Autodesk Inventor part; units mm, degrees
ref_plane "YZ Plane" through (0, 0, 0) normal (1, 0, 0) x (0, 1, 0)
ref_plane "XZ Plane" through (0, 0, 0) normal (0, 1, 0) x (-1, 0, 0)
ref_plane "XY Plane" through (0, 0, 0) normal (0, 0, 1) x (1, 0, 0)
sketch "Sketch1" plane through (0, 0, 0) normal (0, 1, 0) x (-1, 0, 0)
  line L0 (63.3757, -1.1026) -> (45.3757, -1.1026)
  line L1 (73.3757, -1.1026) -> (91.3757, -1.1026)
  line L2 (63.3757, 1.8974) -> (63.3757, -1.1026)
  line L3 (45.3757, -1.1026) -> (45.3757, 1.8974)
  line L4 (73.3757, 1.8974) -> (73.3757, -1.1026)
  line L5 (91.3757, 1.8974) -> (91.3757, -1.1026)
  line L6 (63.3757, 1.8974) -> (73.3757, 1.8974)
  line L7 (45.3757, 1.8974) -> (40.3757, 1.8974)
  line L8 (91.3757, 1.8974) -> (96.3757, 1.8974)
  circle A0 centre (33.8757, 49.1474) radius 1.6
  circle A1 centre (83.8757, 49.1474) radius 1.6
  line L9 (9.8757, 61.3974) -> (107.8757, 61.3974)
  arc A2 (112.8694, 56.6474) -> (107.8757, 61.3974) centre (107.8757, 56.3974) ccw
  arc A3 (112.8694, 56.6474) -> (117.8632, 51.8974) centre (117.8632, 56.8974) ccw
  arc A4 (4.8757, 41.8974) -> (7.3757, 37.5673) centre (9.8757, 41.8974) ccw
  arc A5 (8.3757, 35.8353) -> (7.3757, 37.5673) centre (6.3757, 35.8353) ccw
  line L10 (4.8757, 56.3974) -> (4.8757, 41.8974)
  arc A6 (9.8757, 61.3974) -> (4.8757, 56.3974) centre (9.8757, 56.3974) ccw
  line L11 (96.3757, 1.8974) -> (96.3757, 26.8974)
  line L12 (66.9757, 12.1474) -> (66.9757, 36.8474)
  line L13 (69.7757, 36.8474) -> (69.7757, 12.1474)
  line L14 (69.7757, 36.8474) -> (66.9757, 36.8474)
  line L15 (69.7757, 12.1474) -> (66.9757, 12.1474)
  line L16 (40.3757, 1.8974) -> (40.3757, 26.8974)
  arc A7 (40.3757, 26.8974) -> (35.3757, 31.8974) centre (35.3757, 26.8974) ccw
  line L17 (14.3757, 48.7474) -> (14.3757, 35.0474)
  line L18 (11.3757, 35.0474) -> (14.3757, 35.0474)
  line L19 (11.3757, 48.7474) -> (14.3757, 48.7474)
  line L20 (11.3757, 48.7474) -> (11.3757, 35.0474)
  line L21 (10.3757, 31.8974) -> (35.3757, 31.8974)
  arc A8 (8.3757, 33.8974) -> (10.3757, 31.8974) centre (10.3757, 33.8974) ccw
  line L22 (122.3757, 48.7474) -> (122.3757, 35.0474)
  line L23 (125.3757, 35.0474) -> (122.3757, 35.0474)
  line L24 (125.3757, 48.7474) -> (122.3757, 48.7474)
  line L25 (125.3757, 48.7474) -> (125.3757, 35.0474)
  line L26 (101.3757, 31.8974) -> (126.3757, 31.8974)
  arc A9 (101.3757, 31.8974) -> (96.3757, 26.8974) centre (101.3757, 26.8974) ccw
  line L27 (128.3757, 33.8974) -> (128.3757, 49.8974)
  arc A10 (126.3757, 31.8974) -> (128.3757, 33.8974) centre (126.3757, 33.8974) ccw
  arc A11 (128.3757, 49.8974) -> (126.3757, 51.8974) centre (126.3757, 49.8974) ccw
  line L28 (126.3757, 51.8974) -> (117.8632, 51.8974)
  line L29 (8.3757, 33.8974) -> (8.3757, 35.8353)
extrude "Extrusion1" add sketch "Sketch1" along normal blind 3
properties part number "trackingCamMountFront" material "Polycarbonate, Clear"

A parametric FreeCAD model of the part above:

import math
import FreeCAD as App
import Part
import Sketcher

V = App.Vector


def add_polygon(sketch, points):
    """Adds a closed chain of lines whose ends are joined by coincident constraints."""
    first, n = sketch.GeometryCount, len(points)
    for a, b in zip(points, points[1:] + points[:1]):
        sketch.addGeometry(Part.LineSegment(App.Vector(*a, 0), App.Vector(*b, 0)), False)
    for i in range(n):
        sketch.addConstraint(Sketcher.Constraint("Coincident", first + i, 2, first + (i + 1) % n, 1))

doc = App.newDocument("Part")
params = doc.addObject("Spreadsheet::Sheet", "Params")
for row, (alias, value) in enumerate([
    ("sketch1_radius", "5 mm"),
    ("sketch1_radius2", "2 mm"),
    ("sketch1_diameter", "3.2 mm"),
    ("sketch1_width", "18 mm"),
    ("sketch1_width2", "10 mm"),
    ("pad1_length", "3 mm"),
], start=1):
    params.set(f"A{row}", alias)
    params.set(f"B{row}", "=" + value)
    params.setAlias(f"B{row}", alias)

body = doc.addObject("PartDesign::Body", "Body")

sketch1 = body.newObject("Sketcher::SketchObject", "Sketch")
sketch1.AttachmentSupport = (doc.getObject("XZ_Plane"), [""])
sketch1.MapMode = "FlatFace"
sketch1.addGeometry(Part.LineSegment(V(-45.4, -1.1, 0), V(-63.4, -1.1, 0)), False)
sketch1.addGeometry(Part.LineSegment(V(-63.4, -1.1, 0), V(-63.4, 1.9, 0)), False)
sketch1.addGeometry(Part.LineSegment(V(-63.4, 1.9, 0), V(-73.4, 1.9, 0)), False)
sketch1.addGeometry(Part.LineSegment(V(-73.4, 1.9, 0), V(-73.4, -1.1, 0)), False)
sketch1.addGeometry(Part.LineSegment(V(-73.4, -1.1, 0), V(-91.4, -1.1, 0)), False)
sketch1.addGeometry(Part.LineSegment(V(-91.4, -1.1, 0), V(-91.4, 1.9, 0)), False)
sketch1.addGeometry(Part.LineSegment(V(-91.4, 1.9, 0), V(-96.4, 1.9, 0)), False)
sketch1.addGeometry(Part.LineSegment(V(-96.4, 1.9, 0), V(-96.4, 26.9, 0)), False)
sketch1.addGeometry(Part.ArcOfCircle(Part.Circle(V(-101.4, 26.9, 0), V(0, 0, 1), 5), math.radians(0), math.radians(90)), False)
sketch1.addGeometry(Part.LineSegment(V(-101.4, 31.9, 0), V(-126.4, 31.9, 0)), False)
sketch1.addGeometry(Part.ArcOfCircle(Part.Circle(V(-126.4, 33.9, 0), V(0, 0, 1), 2), math.radians(180), math.radians(270)), False)
sketch1.addGeometry(Part.LineSegment(V(-128.4, 33.9, 0), V(-128.4, 49.9, 0)), False)
sketch1.addGeometry(Part.ArcOfCircle(Part.Circle(V(-126.4, 49.9, 0), V(0, 0, 1), 2), math.radians(90), math.radians(180)), False)
sketch1.addGeometry(Part.LineSegment(V(-126.4, 51.9, 0), V(-117.9, 51.9, 0)), False)
sketch1.addGeometry(Part.ArcOfCircle(Part.Circle(V(-117.9, 56.9, 0), V(0, 0, 1), 5), math.radians(-90), math.radians(-3)), False)
sketch1.addGeometry(Part.ArcOfCircle(Part.Circle(V(-107.9, 56.4, 0), V(0, 0, 1), 5), math.radians(90), math.radians(177)), False)
sketch1.addGeometry(Part.LineSegment(V(-107.9, 61.4, 0), V(-9.9, 61.4, 0)), False)
sketch1.addGeometry(Part.ArcOfCircle(Part.Circle(V(-9.9, 56.4, 0), V(0, 0, 1), 5), math.radians(0), math.radians(90)), False)
sketch1.addGeometry(Part.LineSegment(V(-4.9, 56.4, 0), V(-4.9, 41.9, 0)), False)
sketch1.addGeometry(Part.ArcOfCircle(Part.Circle(V(-9.9, 41.9, 0), V(0, 0, 1), 5), math.radians(-60), math.radians(0)), False)
sketch1.addGeometry(Part.ArcOfCircle(Part.Circle(V(-6.4, 35.8, 0), V(0, 0, 1), 2), math.radians(120), math.radians(180)), False)
sketch1.addGeometry(Part.LineSegment(V(-8.4, 35.8, 0), V(-8.4, 33.9, 0)), False)
sketch1.addGeometry(Part.ArcOfCircle(Part.Circle(V(-10.4, 33.9, 0), V(0, 0, 1), 2), math.radians(-90), math.radians(0)), False)
sketch1.addGeometry(Part.LineSegment(V(-10.4, 31.9, 0), V(-35.4, 31.9, 0)), False)
sketch1.addGeometry(Part.ArcOfCircle(Part.Circle(V(-35.4, 26.9, 0), V(0, 0, 1), 5), math.radians(90), math.radians(180)), False)
sketch1.addGeometry(Part.LineSegment(V(-40.4, 26.9, 0), V(-40.4, 1.9, 0)), False)
sketch1.addGeometry(Part.LineSegment(V(-40.4, 1.9, 0), V(-45.4, 1.9, 0)), False)
sketch1.addGeometry(Part.LineSegment(V(-45.4, 1.9, 0), V(-45.4, -1.1, 0)), False)
add_polygon(sketch1, [(-69.8, 12.1), (-67, 12.1), (-67, 36.8), (-69.8, 36.8)])
add_polygon(sketch1, [(-11.4, 48.7), (-14.4, 48.7), (-14.4, 35), (-11.4, 35)])
sketch1.addGeometry(Part.Circle(V(-33.9, 49.1, 0), V(0, 0, 1), 1.6), False)
add_polygon(sketch1, [(-122.4, 35), (-122.4, 48.7), (-125.4, 48.7), (-125.4, 35)])
sketch1.addGeometry(Part.Circle(V(-83.9, 49.1, 0), V(0, 0, 1), 1.6), False)
sketch1.addConstraint(Sketcher.Constraint("Coincident", 0, 2, 1, 1))
sketch1.addConstraint(Sketcher.Constraint("Coincident", 1, 2, 2, 1))
sketch1.addConstraint(Sketcher.Constraint("Coincident", 2, 2, 3, 1))
sketch1.addConstraint(Sketcher.Constraint("Coincident", 3, 2, 4, 1))
sketch1.addConstraint(Sketcher.Constraint("Coincident", 4, 2, 5, 1))
sketch1.addConstraint(Sketcher.Constraint("Coincident", 5, 2, 6, 1))
sketch1.addConstraint(Sketcher.Constraint("Coincident", 6, 2, 7, 1))
sketch1.addConstraint(Sketcher.Constraint("Tangent", 7, 2, 8, 1))
sketch1.addConstraint(Sketcher.Constraint("Tangent", 8, 2, 9, 1))
sketch1.addConstraint(Sketcher.Constraint("Tangent", 9, 2, 10, 2))
sketch1.addConstraint(Sketcher.Constraint("Tangent", 10, 1, 11, 1))
sketch1.addConstraint(Sketcher.Constraint("Tangent", 11, 2, 12, 2))
sketch1.addConstraint(Sketcher.Constraint("Tangent", 12, 1, 13, 1))
sketch1.addConstraint(Sketcher.Constraint("Tangent", 13, 2, 14, 1))
sketch1.addConstraint(Sketcher.Constraint("Tangent", 14, 2, 15, 2))
sketch1.addConstraint(Sketcher.Constraint("Tangent", 15, 1, 16, 1))
sketch1.addConstraint(Sketcher.Constraint("Tangent", 16, 2, 17, 2))
sketch1.addConstraint(Sketcher.Constraint("Tangent", 17, 1, 18, 1))
sketch1.addConstraint(Sketcher.Constraint("Tangent", 18, 2, 19, 2))
sketch1.addConstraint(Sketcher.Constraint("Tangent", 19, 1, 20, 1))
sketch1.addConstraint(Sketcher.Constraint("Tangent", 20, 2, 21, 1))
sketch1.addConstraint(Sketcher.Constraint("Tangent", 21, 2, 22, 2))
sketch1.addConstraint(Sketcher.Constraint("Tangent", 22, 1, 23, 1))
sketch1.addConstraint(Sketcher.Constraint("Tangent", 23, 2, 24, 1))
sketch1.addConstraint(Sketcher.Constraint("Tangent", 24, 2, 25, 1))
sketch1.addConstraint(Sketcher.Constraint("Coincident", 25, 2, 26, 1))
sketch1.addConstraint(Sketcher.Constraint("Coincident", 26, 2, 27, 1))
sketch1.addConstraint(Sketcher.Constraint("Coincident", 27, 2, 0, 1))
sketch1.addConstraint(Sketcher.Constraint("Horizontal", 0))
sketch1.addConstraint(Sketcher.Constraint("Vertical", 1))
sketch1.addConstraint(Sketcher.Constraint("Horizontal", 2))
sketch1.addConstraint(Sketcher.Constraint("Vertical", 3))
sketch1.addConstraint(Sketcher.Constraint("Horizontal", 4))
sketch1.addConstraint(Sketcher.Constraint("Vertical", 5))
sketch1.addConstraint(Sketcher.Constraint("Horizontal", 6))
sketch1.addConstraint(Sketcher.Constraint("Vertical", 7))
sketch1.addConstraint(Sketcher.Constraint("Horizontal", 9))
sketch1.addConstraint(Sketcher.Constraint("Vertical", 11))
sketch1.addConstraint(Sketcher.Constraint("Horizontal", 13))
sketch1.addConstraint(Sketcher.Constraint("Horizontal", 16))
sketch1.addConstraint(Sketcher.Constraint("Vertical", 18))
sketch1.addConstraint(Sketcher.Constraint("Vertical", 21))
sketch1.addConstraint(Sketcher.Constraint("Horizontal", 23))
sketch1.addConstraint(Sketcher.Constraint("Vertical", 25))
sketch1.addConstraint(Sketcher.Constraint("Horizontal", 26))
sketch1.addConstraint(Sketcher.Constraint("Vertical", 27))
sketch1.addConstraint(Sketcher.Constraint("Horizontal", 28))
sketch1.addConstraint(Sketcher.Constraint("Vertical", 29))
sketch1.addConstraint(Sketcher.Constraint("Horizontal", 30))
sketch1.addConstraint(Sketcher.Constraint("Vertical", 31))
sketch1.addConstraint(Sketcher.Constraint("Horizontal", 32))
sketch1.addConstraint(Sketcher.Constraint("Vertical", 33))
sketch1.addConstraint(Sketcher.Constraint("Horizontal", 34))
sketch1.addConstraint(Sketcher.Constraint("Vertical", 35))
sketch1.addConstraint(Sketcher.Constraint("Vertical", 37))
sketch1.addConstraint(Sketcher.Constraint("Horizontal", 38))
sketch1.addConstraint(Sketcher.Constraint("Vertical", 39))
sketch1.addConstraint(Sketcher.Constraint("Horizontal", 40))
sketch1.addConstraint(Sketcher.Constraint("Equal", 10, 12))
sketch1.addConstraint(Sketcher.Constraint("Equal", 8, 14))
sketch1.addConstraint(Sketcher.Constraint("Equal", 14, 15))
sketch1.addConstraint(Sketcher.Constraint("Equal", 15, 17))
sketch1.addConstraint(Sketcher.Constraint("Equal", 17, 19))
sketch1.addConstraint(Sketcher.Constraint("Equal", 12, 20))
sketch1.addConstraint(Sketcher.Constraint("Equal", 20, 22))
sketch1.addConstraint(Sketcher.Constraint("Equal", 19, 24))
sketch1.addConstraint(Sketcher.Constraint("Equal", 36, 41))
sketch1.addConstraint(Sketcher.Constraint("Horizontal", 10, 3, 22, 3))
sketch1.addConstraint(Sketcher.Constraint("Horizontal", 36, 3, 41, 3))
sketch1.addConstraint(Sketcher.Constraint("Horizontal", 0, 2, 3, 2))
sketch1.addConstraint(Sketcher.Constraint("Horizontal", 2, 2, 5, 2))
sketch1.addConstraint(Sketcher.Constraint("Horizontal", 6, 2, 25, 2))
sketch1.addConstraint(Sketcher.Constraint("Horizontal", 35, 2, 37, 2))
sketch1.addConstraint(Sketcher.Constraint("Horizontal", 34, 2, 39, 2))
sketch1.addConstraint(Sketcher.Constraint("Equal", 0, 4))
sketch1.addConstraint(Sketcher.Constraint("Equal", 9, 23))
sketch1.addConstraint(Sketcher.Constraint("Equal", 6, 26))
sketch1.addConstraint(Sketcher.Constraint("Equal", 34, 38))
sketch1.addConstraint(Sketcher.Constraint("Equal", 40, 1))
sketch1.addConstraint(Sketcher.Constraint("Equal", 23, 7))
sketch1.addConstraint(Sketcher.Constraint("Radius", 8, 5.0))
sketch1.addConstraint(Sketcher.Constraint("Radius", 10, 2.0))
sketch1.addConstraint(Sketcher.Constraint("Diameter", 36, 3.2))
sketch1.addConstraint(Sketcher.Constraint("DistanceX", 0, 2, 0, 1, 18.0))
sketch1.addConstraint(Sketcher.Constraint("DistanceX", 2, 2, 2, 1, 10.0))
sketch1.addConstraint(Sketcher.Constraint("DistanceX", 6, 2, 6, 1, 5.0))
sketch1.addConstraint(Sketcher.Constraint("DistanceX", 9, 2, 9, 1, 25.0))
sketch1.addConstraint(Sketcher.Constraint("DistanceX", 16, 1, 16, 2, 98.0))
sketch1.addConstraint(Sketcher.Constraint("DistanceX", 32, 2, 32, 1, 3.0))
sketch1.addConstraint(Sketcher.Constraint("DistanceY", 11, 1, 11, 2, 16.0))
sketch1.addConstraint(Sketcher.Constraint("DistanceX", 28, 1, 28, 2, 2.8))
sketch1.addConstraint(Sketcher.Constraint("DistanceY", 18, 2, 18, 1, 14.5))
sketch1.addConstraint(Sketcher.Constraint("DistanceY", 29, 1, 29, 2, 24.7))
sketch1.addConstraint(Sketcher.Constraint("DistanceY", 33, 2, 33, 1, 13.7))
sketch1.addConstraint(Sketcher.Constraint("DistanceY", 8, 3, 19, 3, 15.0))
sketch1.addConstraint(Sketcher.Constraint("DistanceX", 36, 3, 17, 3, 24.0))
sketch1.addConstraint(Sketcher.Constraint("DistanceX", 15, 3, 41, 3, 24.0))
sketch1.addConstraint(Sketcher.Constraint("DistanceX", 19, 1, 20, 3, 1.0))
sketch1.addConstraint(Sketcher.Constraint("DistanceX", 32, 2, 19, 1, 7.0))
sketch1.addConstraint(Sketcher.Constraint("DistanceX", 12, 3, 37, 2, 4.0))
sketch1.addConstraint(Sketcher.Constraint("DistanceX", 28, 2, 1, 2, 3.6))
sketch1.addConstraint(Sketcher.Constraint("DistanceY", 29, 2, 41, 3, 12.3))
sketch1.addConstraint(Sketcher.Constraint("DistanceY", 24, 3, 36, 3, 22.25))
sketch1.addConstraint(Sketcher.Constraint("DistanceY", 19, 3, 32, 2, 6.85))
sketch1.addConstraint(Sketcher.Constraint("DistanceX", 8, 3, -1, 1, 101.3757))
sketch1.addConstraint(Sketcher.Constraint("DistanceY", -1, 1, 8, 3, 26.8974))
sketch1.setExpression("Constraints[92]", "Params.sketch1_radius")
sketch1.setExpression("Constraints[93]", "Params.sketch1_radius2")
sketch1.setExpression("Constraints[94]", "Params.sketch1_diameter")
sketch1.setExpression("Constraints[95]", "Params.sketch1_width")
sketch1.setExpression("Constraints[96]", "Params.sketch1_width2")
pad1 = body.newObject("PartDesign::Pad", "Pad")
pad1.Profile = sketch1
pad1.setExpression("Length", "Params.pad1_length")
pad1.Reversed = True

doc.recompute()
